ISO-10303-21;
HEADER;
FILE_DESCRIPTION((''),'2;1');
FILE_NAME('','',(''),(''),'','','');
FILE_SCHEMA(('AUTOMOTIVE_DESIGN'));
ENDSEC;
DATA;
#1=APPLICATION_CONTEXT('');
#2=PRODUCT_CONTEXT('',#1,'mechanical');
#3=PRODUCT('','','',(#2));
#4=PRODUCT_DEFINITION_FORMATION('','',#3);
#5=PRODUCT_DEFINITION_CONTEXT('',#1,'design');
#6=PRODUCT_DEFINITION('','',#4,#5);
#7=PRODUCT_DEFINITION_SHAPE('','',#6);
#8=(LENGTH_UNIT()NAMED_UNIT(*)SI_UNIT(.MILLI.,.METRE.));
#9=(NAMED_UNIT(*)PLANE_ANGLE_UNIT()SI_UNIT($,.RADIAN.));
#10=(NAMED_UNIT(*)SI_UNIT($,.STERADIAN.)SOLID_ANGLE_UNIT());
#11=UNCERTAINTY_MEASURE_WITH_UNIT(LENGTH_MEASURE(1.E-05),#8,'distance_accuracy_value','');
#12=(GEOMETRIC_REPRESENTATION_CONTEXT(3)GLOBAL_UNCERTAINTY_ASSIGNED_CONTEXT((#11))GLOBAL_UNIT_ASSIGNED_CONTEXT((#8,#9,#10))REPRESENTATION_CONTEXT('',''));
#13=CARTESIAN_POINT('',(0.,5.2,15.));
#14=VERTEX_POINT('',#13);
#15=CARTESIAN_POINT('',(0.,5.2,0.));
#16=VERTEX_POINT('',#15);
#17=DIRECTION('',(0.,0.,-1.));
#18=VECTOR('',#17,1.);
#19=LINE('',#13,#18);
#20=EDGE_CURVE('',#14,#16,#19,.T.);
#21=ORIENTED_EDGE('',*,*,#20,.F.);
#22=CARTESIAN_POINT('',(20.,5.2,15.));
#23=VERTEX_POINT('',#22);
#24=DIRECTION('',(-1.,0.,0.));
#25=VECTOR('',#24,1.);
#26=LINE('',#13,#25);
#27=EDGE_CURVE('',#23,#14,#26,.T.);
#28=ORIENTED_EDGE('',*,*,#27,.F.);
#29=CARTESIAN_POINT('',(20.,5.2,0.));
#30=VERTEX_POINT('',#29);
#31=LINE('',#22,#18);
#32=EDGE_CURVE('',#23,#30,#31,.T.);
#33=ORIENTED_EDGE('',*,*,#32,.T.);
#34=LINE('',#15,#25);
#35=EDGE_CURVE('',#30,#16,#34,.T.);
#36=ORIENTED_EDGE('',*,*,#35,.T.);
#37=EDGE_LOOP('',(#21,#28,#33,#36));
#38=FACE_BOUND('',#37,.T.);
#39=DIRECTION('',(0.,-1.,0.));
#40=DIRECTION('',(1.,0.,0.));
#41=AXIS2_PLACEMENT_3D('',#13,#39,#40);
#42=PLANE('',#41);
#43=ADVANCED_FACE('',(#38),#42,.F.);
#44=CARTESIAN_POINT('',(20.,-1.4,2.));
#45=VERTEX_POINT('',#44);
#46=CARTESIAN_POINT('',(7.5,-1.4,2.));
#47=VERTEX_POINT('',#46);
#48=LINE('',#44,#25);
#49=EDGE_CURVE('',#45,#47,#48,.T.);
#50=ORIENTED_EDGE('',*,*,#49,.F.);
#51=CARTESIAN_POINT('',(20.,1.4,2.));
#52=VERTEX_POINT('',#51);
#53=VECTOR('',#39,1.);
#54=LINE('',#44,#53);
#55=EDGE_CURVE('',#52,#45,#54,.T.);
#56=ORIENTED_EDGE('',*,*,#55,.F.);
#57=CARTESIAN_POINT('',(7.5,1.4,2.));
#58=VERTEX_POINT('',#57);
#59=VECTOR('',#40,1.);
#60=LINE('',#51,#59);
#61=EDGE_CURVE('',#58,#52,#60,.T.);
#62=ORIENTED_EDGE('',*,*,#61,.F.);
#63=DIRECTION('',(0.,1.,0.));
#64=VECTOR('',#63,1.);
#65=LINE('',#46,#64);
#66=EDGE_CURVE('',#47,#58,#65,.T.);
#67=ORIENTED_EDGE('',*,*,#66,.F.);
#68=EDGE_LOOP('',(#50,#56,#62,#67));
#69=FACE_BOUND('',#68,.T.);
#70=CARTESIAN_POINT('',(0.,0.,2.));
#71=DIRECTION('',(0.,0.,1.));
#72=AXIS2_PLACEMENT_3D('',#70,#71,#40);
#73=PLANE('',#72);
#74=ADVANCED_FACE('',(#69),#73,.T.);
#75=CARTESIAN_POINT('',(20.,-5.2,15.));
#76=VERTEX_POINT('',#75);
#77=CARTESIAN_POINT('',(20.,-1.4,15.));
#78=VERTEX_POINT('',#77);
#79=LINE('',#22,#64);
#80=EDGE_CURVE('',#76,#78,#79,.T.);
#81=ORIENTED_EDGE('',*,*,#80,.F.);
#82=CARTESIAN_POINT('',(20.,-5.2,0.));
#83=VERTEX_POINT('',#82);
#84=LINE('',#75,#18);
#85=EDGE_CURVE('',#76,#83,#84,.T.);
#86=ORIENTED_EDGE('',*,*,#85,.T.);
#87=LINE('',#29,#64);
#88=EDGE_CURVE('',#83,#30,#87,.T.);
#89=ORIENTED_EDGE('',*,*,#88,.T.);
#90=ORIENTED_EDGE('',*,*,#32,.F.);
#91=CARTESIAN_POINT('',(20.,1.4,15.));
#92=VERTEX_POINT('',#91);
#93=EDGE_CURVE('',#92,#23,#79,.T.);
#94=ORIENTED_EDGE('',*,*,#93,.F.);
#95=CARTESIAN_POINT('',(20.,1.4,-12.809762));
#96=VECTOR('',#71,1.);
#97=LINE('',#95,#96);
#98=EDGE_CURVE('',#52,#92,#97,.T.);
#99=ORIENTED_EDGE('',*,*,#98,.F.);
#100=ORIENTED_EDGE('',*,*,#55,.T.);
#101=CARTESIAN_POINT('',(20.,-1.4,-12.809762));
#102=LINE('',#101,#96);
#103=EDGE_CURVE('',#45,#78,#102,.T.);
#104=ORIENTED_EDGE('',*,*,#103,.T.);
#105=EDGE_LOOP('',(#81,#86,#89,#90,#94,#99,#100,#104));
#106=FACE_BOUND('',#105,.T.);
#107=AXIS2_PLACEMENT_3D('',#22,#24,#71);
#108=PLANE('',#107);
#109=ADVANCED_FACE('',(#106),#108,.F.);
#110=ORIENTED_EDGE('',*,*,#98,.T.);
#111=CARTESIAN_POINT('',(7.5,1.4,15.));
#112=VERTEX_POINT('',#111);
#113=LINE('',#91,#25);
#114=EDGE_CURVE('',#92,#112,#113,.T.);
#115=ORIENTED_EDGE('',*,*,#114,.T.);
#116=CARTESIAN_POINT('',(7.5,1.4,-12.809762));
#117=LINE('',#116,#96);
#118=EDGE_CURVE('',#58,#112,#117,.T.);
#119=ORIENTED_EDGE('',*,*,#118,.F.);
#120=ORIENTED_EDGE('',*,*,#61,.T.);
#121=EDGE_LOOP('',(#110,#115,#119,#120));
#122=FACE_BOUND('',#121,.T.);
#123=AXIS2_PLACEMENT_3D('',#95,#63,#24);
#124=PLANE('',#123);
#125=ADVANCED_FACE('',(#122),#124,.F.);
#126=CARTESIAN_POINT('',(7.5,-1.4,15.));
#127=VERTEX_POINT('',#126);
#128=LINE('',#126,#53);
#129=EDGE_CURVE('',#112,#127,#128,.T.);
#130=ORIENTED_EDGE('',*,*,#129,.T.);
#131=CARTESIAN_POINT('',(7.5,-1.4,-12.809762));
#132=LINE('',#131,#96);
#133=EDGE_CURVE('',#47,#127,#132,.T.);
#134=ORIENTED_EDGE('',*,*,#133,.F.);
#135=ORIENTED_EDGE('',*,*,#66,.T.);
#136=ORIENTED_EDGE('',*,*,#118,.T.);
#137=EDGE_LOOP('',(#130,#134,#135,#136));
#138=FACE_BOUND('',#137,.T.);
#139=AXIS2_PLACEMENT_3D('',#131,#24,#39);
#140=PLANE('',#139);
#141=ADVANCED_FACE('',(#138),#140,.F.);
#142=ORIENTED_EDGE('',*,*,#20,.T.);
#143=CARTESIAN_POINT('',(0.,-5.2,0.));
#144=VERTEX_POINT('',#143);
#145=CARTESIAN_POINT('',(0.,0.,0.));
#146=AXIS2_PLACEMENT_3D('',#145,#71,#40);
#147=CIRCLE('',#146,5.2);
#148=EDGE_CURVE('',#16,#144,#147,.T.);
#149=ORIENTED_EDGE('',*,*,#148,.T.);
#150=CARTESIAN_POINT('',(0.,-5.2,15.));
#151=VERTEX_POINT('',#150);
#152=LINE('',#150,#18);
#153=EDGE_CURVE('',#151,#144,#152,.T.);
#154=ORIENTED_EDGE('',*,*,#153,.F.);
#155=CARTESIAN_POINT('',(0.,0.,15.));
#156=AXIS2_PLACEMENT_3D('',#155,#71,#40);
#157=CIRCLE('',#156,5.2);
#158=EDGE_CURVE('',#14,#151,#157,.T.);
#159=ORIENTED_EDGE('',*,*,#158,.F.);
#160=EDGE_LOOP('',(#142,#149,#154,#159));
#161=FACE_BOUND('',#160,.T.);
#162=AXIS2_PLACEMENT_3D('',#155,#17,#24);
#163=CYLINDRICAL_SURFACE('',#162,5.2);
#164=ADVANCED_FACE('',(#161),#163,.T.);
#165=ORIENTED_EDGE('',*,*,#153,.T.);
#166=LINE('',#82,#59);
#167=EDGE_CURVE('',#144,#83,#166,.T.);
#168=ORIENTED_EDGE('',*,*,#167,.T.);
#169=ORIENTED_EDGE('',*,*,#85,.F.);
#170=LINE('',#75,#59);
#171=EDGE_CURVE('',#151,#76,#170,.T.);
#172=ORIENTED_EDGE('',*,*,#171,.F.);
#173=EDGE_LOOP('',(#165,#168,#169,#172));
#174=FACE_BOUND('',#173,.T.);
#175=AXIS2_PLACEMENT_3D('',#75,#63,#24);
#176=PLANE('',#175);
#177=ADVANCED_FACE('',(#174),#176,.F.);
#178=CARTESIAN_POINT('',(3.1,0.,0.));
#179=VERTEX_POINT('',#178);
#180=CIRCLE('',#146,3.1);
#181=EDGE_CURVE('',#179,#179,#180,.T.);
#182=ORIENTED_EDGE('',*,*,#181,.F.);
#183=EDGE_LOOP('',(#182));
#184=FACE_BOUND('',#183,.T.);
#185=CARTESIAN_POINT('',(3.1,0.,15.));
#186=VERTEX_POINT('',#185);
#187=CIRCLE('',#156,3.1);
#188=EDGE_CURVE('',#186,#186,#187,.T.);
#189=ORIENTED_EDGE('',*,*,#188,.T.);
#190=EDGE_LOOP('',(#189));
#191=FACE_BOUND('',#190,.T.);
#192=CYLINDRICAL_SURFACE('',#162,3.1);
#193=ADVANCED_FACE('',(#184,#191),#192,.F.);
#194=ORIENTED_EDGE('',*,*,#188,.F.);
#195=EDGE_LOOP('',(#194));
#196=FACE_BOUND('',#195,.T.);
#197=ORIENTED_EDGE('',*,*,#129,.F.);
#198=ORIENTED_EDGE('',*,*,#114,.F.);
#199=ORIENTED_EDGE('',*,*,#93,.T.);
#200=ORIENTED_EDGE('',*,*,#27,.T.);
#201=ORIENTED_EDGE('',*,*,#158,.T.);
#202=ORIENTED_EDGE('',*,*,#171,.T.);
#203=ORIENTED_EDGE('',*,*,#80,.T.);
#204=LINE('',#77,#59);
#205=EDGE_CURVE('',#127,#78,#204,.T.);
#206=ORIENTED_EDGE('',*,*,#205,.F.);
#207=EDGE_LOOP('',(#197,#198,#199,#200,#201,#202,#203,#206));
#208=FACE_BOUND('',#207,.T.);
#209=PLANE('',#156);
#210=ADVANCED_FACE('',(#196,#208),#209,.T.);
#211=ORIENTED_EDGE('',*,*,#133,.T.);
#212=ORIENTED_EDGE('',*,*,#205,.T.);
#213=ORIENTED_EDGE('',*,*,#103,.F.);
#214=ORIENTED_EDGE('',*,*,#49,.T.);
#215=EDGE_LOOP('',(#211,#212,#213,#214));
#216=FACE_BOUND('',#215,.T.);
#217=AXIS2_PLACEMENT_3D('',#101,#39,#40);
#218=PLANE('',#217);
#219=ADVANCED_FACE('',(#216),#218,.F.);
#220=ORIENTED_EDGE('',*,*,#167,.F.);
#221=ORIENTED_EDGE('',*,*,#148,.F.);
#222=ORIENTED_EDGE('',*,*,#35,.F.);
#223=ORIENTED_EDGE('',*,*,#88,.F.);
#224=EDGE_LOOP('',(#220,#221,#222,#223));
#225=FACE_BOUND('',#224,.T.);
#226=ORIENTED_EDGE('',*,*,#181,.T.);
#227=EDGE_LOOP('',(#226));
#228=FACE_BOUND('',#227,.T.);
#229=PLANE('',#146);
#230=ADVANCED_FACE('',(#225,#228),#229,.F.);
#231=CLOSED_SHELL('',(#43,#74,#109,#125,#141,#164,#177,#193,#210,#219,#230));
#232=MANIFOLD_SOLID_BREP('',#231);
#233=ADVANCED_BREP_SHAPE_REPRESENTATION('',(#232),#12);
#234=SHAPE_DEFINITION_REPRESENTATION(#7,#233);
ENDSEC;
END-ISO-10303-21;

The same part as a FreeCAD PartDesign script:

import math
import FreeCAD as App
import Part
import Sketcher

V = App.Vector

doc = App.newDocument("Part")
params = doc.addObject("Spreadsheet::Sheet", "Params")
for row, (alias, value) in enumerate([
    ("sketch1_diameter", "6.2 mm"),
    ("sketch1_radius", "5.2 mm"),
    ("sketch1_width", "20 mm"),
    ("pad1_length", "15 mm"),
    ("sketch2_width", "12.5 mm"),
    ("sketch2_height", "2.8 mm"),
    ("pocket1_length", "13 mm"),
], start=1):
    params.set(f"A{row}", alias)
    params.set(f"B{row}", "=" + value)
    params.setAlias(f"B{row}", alias)

body = doc.addObject("PartDesign::Body", "Body")

# Sketch on XY plane
sketch1 = body.newObject("Sketcher::SketchObject", "Sketch")
sketch1.AttachmentSupport = (doc.getObject("XY_Plane"), [""])
sketch1.MapMode = "FlatFace"
sketch1.addGeometry([
    Part.LineSegment(V(20, 5.2, 0), V(0, 5.2, 0)),  # 0
    Part.ArcOfCircle(Part.Circle(V(0, 0, 0), V(0, 0, 1), 5.2), math.radians(90), math.radians(270)),  # 1
    Part.LineSegment(V(0, -5.2, 0), V(20, -5.2, 0)),  # 2
    Part.LineSegment(V(20, -5.2, 0), V(20, 5.2, 0)),  # 3
    Part.Circle(V(0, 0, 0), V(0, 0, 1), 3.1),  # 4
], False)
sketch1.addConstraint([
    Sketcher.Constraint("Tangent", 0, 2, 1, 1),
    Sketcher.Constraint("Tangent", 1, 2, 2, 1),
    Sketcher.Constraint("Coincident", 2, 2, 3, 1),
    Sketcher.Constraint("Coincident", 3, 2, 0, 1),
    Sketcher.Constraint("Horizontal", 0),
    Sketcher.Constraint("Horizontal", 2),
    Sketcher.Constraint("Vertical", 3),
    Sketcher.Constraint("Coincident", 1, 3, -1, 1),
    Sketcher.Constraint("Coincident", 4, 3, -1, 1),
    Sketcher.Constraint("Diameter", 4, 6.2),
    Sketcher.Constraint("Radius", 1, 5.2),
    Sketcher.Constraint("DistanceX", 0, 2, 0, 1, 20.0),
])
sketch1.setExpression("Constraints[9]", "Params.sketch1_diameter")
sketch1.setExpression("Constraints[10]", "Params.sketch1_radius")
sketch1.setExpression("Constraints[11]", "Params.sketch1_width")
pad1 = body.newObject("PartDesign::Pad", "Pad")
pad1.Profile = sketch1
pad1.setExpression("Length", "Params.pad1_length")

# Sketch on XY plane
sketch2 = body.newObject("Sketcher::SketchObject", "Sketch001")
sketch2.AttachmentSupport = (doc.getObject("XY_Plane"), [""])
sketch2.MapMode = "FlatFace"
sketch2.AttachmentOffset = App.Placement(V(0, 0, 15), App.Rotation())
sketch2.addGeometry([
    Part.LineSegment(V(7.5, 1.4, 0), V(7.5, -1.4, 0)),
    Part.LineSegment(V(7.5, -1.4, 0), V(20, -1.4, 0)),
    Part.LineSegment(V(20, -1.4, 0), V(20, 1.4, 0)),
    Part.LineSegment(V(20, 1.4, 0), V(7.5, 1.4, 0)),
], False)
sketch2.addConstraint([
    Sketcher.Constraint("Coincident", 0, 2, 1, 1),
    Sketcher.Constraint("Coincident", 1, 2, 2, 1),
    Sketcher.Constraint("Coincident", 2, 2, 3, 1),
    Sketcher.Constraint("Coincident", 3, 2, 0, 1),
    Sketcher.Constraint("Vertical", 0),
    Sketcher.Constraint("Horizontal", 1),
    Sketcher.Constraint("Vertical", 2),
    Sketcher.Constraint("Horizontal", 3),
    Sketcher.Constraint("DistanceX", 1, 1, 1, 2, 12.5),
    Sketcher.Constraint("DistanceY", 0, 2, 0, 1, 2.8),
    Sketcher.Constraint("DistanceX", -1, 1, 1, 2, 20.0),
    Sketcher.Constraint("DistanceY", 0, 2, -1, 1, 1.4),
])
sketch2.setExpression("Constraints[8]", "Params.sketch2_width")
sketch2.setExpression("Constraints[9]", "Params.sketch2_height")
pocket1 = body.newObject("PartDesign::Pocket", "Pocket")
pocket1.Profile = sketch2
pocket1.setExpression("Length", "Params.pocket1_length")

doc.recompute()
